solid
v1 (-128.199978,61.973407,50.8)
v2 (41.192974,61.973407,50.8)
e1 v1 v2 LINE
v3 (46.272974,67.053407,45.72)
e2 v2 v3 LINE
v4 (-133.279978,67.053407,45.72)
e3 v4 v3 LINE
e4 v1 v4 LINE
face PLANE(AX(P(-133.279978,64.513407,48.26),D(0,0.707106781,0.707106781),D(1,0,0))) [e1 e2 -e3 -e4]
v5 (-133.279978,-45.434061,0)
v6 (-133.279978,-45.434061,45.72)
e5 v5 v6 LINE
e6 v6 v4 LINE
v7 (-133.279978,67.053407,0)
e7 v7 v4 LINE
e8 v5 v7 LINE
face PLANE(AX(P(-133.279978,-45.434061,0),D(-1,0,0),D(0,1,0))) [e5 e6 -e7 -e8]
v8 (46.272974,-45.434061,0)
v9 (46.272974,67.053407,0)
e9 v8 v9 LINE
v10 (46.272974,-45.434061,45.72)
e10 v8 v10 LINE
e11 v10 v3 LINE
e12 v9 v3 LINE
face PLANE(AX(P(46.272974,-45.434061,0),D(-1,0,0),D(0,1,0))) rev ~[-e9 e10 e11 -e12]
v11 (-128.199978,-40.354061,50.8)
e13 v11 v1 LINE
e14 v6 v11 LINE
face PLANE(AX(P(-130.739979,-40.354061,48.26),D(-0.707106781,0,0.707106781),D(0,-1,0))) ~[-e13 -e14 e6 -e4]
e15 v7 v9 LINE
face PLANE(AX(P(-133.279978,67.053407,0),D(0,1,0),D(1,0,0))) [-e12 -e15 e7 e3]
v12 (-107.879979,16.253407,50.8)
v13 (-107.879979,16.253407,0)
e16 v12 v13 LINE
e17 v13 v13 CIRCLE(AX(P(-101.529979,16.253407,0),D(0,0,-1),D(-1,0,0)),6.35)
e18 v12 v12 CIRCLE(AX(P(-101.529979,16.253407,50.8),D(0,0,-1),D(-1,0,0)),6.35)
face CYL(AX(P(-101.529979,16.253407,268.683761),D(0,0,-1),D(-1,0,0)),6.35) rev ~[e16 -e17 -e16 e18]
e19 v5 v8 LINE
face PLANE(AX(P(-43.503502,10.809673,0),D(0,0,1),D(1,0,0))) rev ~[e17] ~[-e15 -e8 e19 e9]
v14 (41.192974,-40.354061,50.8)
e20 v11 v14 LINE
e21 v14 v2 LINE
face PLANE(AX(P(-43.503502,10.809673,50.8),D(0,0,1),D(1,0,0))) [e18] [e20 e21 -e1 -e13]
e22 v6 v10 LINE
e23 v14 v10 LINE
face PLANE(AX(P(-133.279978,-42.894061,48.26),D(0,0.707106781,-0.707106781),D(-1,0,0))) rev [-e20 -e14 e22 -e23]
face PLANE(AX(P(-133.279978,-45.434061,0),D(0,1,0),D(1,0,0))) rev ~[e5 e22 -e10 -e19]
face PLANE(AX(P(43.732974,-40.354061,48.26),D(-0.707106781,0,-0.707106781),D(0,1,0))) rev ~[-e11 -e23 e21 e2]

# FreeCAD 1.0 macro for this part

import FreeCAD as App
import Part
import Sketcher
Q = App.Units.Quantity


def edges_at(feature, points):
    """Names of the edges that pass closest to the given points."""
    edges = feature.Shape.Edges
    near = lambda p: min(range(len(edges)), key=lambda i: edges[i].distToShape(Part.Vertex(*p))[0])
    return sorted({f"Edge{near(p) + 1}" for p in points})


def add_polygon(sketch, points):
    """Adds a closed chain of lines whose ends are joined by coincident constraints."""
    first, n = sketch.GeometryCount, len(points)
    for a, b in zip(points, points[1:] + points[:1]):
        sketch.addGeometry(Part.LineSegment(App.Vector(*a, 0), App.Vector(*b, 0)), False)
    for i in range(n):
        sketch.addConstraint(Sketcher.Constraint("Coincident", first + i, 2, first + (i + 1) % n, 1))

doc = App.newDocument("Part")
body = doc.addObject("PartDesign::Body", "Body")

sketch1 = body.newObject("Sketcher::SketchObject", "Sketch")
sketch1.AttachmentSupport = (doc.getObject("XY_Plane"), [""])
sketch1.MapMode = "FlatFace"
add_polygon(sketch1, [(-133.279978, 67.053407), (-133.279978, -45.434061), (46.272974, -45.434061), (46.272974, 67.053407)])
sketch1.addConstraint([
    Sketcher.Constraint("Vertical", 0),
    Sketcher.Constraint("Horizontal", 1),
    Sketcher.Constraint("Vertical", 2),
    Sketcher.Constraint("Horizontal", 3),
    Sketcher.Constraint("DistanceY", 0, 2, 0, 1, Q("112.487468 mm")),
    Sketcher.Constraint("DistanceX", 1, 1, 1, 2, Q("179.552953 mm")),
    Sketcher.Constraint("DistanceX", 0, 2, -1, 1, Q("133.279978 mm")),
    Sketcher.Constraint("DistanceY", 0, 2, -1, 1, Q("45.434061 mm")),
])
pad1 = body.newObject("PartDesign::Pad", "Pad")
pad1.Profile = sketch1
pad1.Length = Q("2 in")

sketch2 = body.newObject("Sketcher::SketchObject", "Sketch001")
sketch2.AttachmentSupport = (doc.getObject("XY_Plane"), [""])
sketch2.MapMode = "FlatFace"
sketch2.AttachmentOffset = App.Placement(App.Vector(0, 0, 2 * 25.4), App.Rotation())
sketch2.addGeometry(Part.Circle(App.Vector(-101.529979, 16.253407, 0), App.Vector(0, 0, 1), 6.35), False)
sketch2.addConstraint([
    Sketcher.Constraint("Diameter", 0, Q("0.5 in")),
    Sketcher.Constraint("DistanceX", 0, 3, -1, 1, Q("101.529979 mm")),
    Sketcher.Constraint("DistanceY", -1, 1, 0, 3, Q("16.253407 mm")),
])
doc.recompute()
hole = body.newObject("PartDesign::Hole", "Hole")
hole.Profile = sketch2
hole.ThreadType = "None"
hole.Diameter = Q("0.5 in")
hole.DepthType = "ThroughAll"
doc.recompute()

chamfer = body.newObject("PartDesign::Chamfer", "Chamfer")
chamfer.Base = (hole, edges_at(hole, [(-43.504, -45.434, 50.8)]))
chamfer.Size = Q("0.2 in")
doc.recompute()

chamfer2 = body.newObject("PartDesign::Chamfer", "Chamfer001")
chamfer2.Base = (chamfer, edges_at(chamfer, [(46.273, 13.35, 50.8), (-43.504, 67.053, 50.8), (-133.28, 13.35, 50.8)]))
chamfer2.Size = Q("0.2 in")

doc.recompute()
